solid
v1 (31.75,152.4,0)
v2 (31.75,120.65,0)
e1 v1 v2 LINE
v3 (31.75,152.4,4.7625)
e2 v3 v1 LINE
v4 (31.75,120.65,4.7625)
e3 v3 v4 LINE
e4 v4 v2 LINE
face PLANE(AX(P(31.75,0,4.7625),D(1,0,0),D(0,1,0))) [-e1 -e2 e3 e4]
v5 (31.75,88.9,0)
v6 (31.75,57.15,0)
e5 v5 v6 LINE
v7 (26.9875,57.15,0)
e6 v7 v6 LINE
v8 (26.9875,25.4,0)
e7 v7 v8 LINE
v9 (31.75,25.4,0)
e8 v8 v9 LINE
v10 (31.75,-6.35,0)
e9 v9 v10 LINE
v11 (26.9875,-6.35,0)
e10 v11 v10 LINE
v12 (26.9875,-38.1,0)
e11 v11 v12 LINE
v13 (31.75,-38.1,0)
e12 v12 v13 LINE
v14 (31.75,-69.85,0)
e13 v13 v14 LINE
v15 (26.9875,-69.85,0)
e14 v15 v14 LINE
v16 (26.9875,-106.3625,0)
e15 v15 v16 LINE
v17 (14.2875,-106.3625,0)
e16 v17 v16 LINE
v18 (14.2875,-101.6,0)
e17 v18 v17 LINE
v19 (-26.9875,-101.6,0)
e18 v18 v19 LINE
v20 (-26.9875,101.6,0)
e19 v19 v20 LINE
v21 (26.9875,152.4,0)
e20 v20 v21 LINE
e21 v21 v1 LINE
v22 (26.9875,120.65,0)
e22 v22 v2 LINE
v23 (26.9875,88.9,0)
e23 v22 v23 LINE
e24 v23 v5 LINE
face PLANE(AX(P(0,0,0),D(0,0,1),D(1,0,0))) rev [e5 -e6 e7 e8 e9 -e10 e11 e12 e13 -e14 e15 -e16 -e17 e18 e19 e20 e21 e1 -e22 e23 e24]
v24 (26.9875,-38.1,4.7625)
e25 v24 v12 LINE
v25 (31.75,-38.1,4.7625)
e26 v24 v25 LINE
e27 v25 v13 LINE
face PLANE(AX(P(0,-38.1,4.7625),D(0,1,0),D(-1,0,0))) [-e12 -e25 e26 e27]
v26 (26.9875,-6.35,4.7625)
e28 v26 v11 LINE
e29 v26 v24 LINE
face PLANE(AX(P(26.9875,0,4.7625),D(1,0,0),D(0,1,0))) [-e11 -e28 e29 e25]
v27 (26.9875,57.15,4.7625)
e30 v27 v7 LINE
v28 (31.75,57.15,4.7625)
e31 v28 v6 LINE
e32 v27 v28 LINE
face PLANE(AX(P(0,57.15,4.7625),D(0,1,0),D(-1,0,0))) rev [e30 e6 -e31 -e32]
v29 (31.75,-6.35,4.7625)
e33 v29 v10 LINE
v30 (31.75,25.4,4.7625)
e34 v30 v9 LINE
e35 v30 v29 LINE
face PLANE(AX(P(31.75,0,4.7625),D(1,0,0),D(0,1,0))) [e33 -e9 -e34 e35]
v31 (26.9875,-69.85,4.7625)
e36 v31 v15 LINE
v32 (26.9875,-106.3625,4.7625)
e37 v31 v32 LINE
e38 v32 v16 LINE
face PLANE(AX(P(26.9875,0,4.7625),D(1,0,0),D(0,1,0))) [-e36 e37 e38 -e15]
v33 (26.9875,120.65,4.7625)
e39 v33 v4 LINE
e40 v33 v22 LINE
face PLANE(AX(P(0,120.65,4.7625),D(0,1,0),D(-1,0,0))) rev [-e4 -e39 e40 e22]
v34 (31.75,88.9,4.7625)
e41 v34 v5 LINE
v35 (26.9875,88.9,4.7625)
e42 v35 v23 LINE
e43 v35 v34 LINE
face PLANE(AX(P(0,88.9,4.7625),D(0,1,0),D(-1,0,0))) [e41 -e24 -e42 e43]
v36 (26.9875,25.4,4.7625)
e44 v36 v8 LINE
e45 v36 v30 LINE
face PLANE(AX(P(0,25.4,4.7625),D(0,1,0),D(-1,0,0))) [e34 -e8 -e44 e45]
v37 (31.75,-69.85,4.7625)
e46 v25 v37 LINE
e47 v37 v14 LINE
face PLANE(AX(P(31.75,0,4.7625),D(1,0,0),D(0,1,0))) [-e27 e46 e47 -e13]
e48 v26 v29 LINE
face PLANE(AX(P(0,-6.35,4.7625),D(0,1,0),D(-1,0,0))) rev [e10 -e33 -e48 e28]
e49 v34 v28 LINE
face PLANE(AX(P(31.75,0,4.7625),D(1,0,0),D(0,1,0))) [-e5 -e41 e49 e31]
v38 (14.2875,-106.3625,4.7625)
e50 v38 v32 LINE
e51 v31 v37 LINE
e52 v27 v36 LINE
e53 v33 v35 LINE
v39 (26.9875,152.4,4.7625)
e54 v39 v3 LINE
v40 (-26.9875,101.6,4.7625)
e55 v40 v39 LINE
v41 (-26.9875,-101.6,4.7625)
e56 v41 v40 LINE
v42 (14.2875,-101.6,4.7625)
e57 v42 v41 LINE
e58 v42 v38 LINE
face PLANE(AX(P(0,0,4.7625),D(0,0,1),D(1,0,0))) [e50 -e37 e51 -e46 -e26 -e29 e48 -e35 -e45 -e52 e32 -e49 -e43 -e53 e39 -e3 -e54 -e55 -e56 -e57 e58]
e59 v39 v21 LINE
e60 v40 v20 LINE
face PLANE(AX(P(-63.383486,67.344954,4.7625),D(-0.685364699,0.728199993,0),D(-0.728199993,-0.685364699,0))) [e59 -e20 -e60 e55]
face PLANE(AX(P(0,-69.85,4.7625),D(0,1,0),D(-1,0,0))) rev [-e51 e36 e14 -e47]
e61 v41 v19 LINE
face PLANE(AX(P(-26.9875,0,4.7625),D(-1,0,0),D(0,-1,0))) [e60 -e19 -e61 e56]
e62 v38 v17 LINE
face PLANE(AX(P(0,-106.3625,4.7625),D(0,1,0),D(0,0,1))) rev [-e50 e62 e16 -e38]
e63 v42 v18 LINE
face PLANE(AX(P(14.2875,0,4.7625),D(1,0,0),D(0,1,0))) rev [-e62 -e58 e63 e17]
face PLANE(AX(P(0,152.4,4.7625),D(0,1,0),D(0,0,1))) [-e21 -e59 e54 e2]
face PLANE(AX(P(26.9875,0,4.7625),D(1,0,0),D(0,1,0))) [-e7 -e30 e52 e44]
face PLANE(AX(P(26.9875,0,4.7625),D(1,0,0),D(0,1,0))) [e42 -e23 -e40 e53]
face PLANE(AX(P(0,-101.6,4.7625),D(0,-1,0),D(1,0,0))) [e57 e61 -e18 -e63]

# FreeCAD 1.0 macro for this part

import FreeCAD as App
import Part
import Sketcher
from FreeCAD import Vector
Q = App.Units.Quantity

doc = App.newDocument("Part")
params = doc.addObject("Spreadsheet::Sheet", "Params")
for row, (alias, value) in enumerate([
    ("sketch1_height", "8 in"),
    ("sketch1_width", "0.5 in"),
    ("sketch1_width2", "1.625 in"),
    ("sketch1_width3", "0.1875 in"),
    ("pad1_length", "0.1875 in"),
], start=1):
    params.set(f"A{row}", alias)
    params.set(f"B{row}", "=" + value)
    params.setAlias(f"B{row}", alias)

body = doc.addObject("PartDesign::Body", "Body")

sketch1 = doc.addObject("Sketcher::SketchObject", "Sketch")
body.addObject(sketch1)
sketch1.AttachmentSupport = (doc.XY_Plane, [""])
sketch1.MapMode = "FlatFace"
sketch1.addGeometry([
    Part.LineSegment(Vector(-26.9875, -101.6, 0), Vector(14.2875, -101.6, 0)),
    Part.LineSegment(Vector(14.2875, -101.6, 0), Vector(14.2875, -106.3625, 0)),
    Part.LineSegment(Vector(14.2875, -106.3625, 0), Vector(26.9875, -106.3625, 0)),
    Part.LineSegment(Vector(26.9875, -106.3625, 0), Vector(26.9875, -69.85, 0)),
    Part.LineSegment(Vector(26.9875, -69.85, 0), Vector(31.75, -69.85, 0)),
    Part.LineSegment(Vector(31.75, -69.85, 0), Vector(31.75, -38.1, 0)),
    Part.LineSegment(Vector(31.75, -38.1, 0), Vector(26.9875, -38.1, 0)),
    Part.LineSegment(Vector(26.9875, -38.1, 0), Vector(26.9875, -6.35, 0)),
    Part.LineSegment(Vector(26.9875, -6.35, 0), Vector(31.75, -6.35, 0)),
    Part.LineSegment(Vector(31.75, -6.35, 0), Vector(31.75, 25.4, 0)),
    Part.LineSegment(Vector(31.75, 25.4, 0), Vector(26.9875, 25.4, 0)),
    Part.LineSegment(Vector(26.9875, 25.4, 0), Vector(26.9875, 57.15, 0)),
    Part.LineSegment(Vector(26.9875, 57.15, 0), Vector(31.75, 57.15, 0)),
    Part.LineSegment(Vector(31.75, 57.15, 0), Vector(31.75, 88.9, 0)),
    Part.LineSegment(Vector(31.75, 88.9, 0), Vector(26.9875, 88.9, 0)),
    Part.LineSegment(Vector(26.9875, 88.9, 0), Vector(26.9875, 120.65, 0)),
    Part.LineSegment(Vector(26.9875, 120.65, 0), Vector(31.75, 120.65, 0)),
    Part.LineSegment(Vector(31.75, 120.65, 0), Vector(31.75, 152.4, 0)),
    Part.LineSegment(Vector(31.75, 152.4, 0), Vector(26.9875, 152.4, 0)),
    Part.LineSegment(Vector(26.9875, 152.4, 0), Vector(-26.9875, 101.6, 0)),
    Part.LineSegment(Vector(-26.9875, 101.6, 0), Vector(-26.9875, -101.6, 0)),
], False)
sketch1.addConstraint([
    Sketcher.Constraint("Coincident", 0, 2, 1, 1),
    Sketcher.Constraint("Coincident", 1, 2, 2, 1),
    Sketcher.Constraint("Coincident", 2, 2, 3, 1),
    Sketcher.Constraint("Coincident", 3, 2, 4, 1),
    Sketcher.Constraint("Coincident", 4, 2, 5, 1),
    Sketcher.Constraint("Coincident", 5, 2, 6, 1),
    Sketcher.Constraint("Coincident", 6, 2, 7, 1),
    Sketcher.Constraint("Coincident", 7, 2, 8, 1),
    Sketcher.Constraint("Coincident", 8, 2, 9, 1),
    Sketcher.Constraint("Coincident", 9, 2, 10, 1),
    Sketcher.Constraint("Coincident", 10, 2, 11, 1),
    Sketcher.Constraint("Coincident", 11, 2, 12, 1),
    Sketcher.Constraint("Coincident", 12, 2, 13, 1),
    Sketcher.Constraint("Coincident", 13, 2, 14, 1),
    Sketcher.Constraint("Coincident", 14, 2, 15, 1),
    Sketcher.Constraint("Coincident", 15, 2, 16, 1),
    Sketcher.Constraint("Coincident", 16, 2, 17, 1),
    Sketcher.Constraint("Coincident", 17, 2, 18, 1),
    Sketcher.Constraint("Coincident", 18, 2, 19, 1),
    Sketcher.Constraint("Coincident", 19, 2, 20, 1),
    Sketcher.Constraint("Coincident", 20, 2, 0, 1),
    Sketcher.Constraint("Horizontal", 0),
    Sketcher.Constraint("Vertical", 1),
    Sketcher.Constraint("Horizontal", 2),
    Sketcher.Constraint("Vertical", 3),
    Sketcher.Constraint("Horizontal", 4),
    Sketcher.Constraint("Vertical", 5),
    Sketcher.Constraint("Horizontal", 6),
    Sketcher.Constraint("Vertical", 7),
    Sketcher.Constraint("Horizontal", 8),
    Sketcher.Constraint("Vertical", 9),
    Sketcher.Constraint("Horizontal", 10),
    Sketcher.Constraint("Vertical", 11),
    Sketcher.Constraint("Horizontal", 12),
    Sketcher.Constraint("Vertical", 13),
    Sketcher.Constraint("Horizontal", 14),
    Sketcher.Constraint("Vertical", 15),
    Sketcher.Constraint("Horizontal", 16),
    Sketcher.Constraint("Vertical", 17),
    Sketcher.Constraint("Horizontal", 18),
    Sketcher.Constraint("Vertical", 20),
    Sketcher.Constraint("Vertical", 3, 2, 6, 2),
    Sketcher.Constraint("Vertical", 5, 2, 8, 2),
    Sketcher.Constraint("Vertical", 7, 2, 10, 2),
    Sketcher.Constraint("Vertical", 9, 2, 12, 2),
    Sketcher.Constraint("Vertical", 11, 2, 14, 2),
    Sketcher.Constraint("Vertical", 13, 2, 16, 2),
    Sketcher.Constraint("Vertical", 15, 2, 18, 2),
    Sketcher.Constraint("Equal", 18, 1),
    Sketcher.Constraint("Equal", 5, 7),
    Sketcher.Constraint("Equal", 7, 9),
    Sketcher.Constraint("Equal", 9, 11),
    Sketcher.Constraint("Equal", 11, 13),
    Sketcher.Constraint("Equal", 13, 15),
    Sketcher.Constraint("Equal", 15, 17),
    Sketcher.Constraint("DistanceY", 20, 2, 20, 1, Q("8 in")),
    Sketcher.Constraint("DistanceX", 2, 1, 2, 2, Q("0.5 in")),
    Sketcher.Constraint("DistanceY", 0, 2, -1, 1, Q("4 in")),
    Sketcher.Constraint("DistanceY", -1, 1, 9, 2, Q("1 in")),
    Sketcher.Constraint("DistanceY", -1, 1, 17, 2, Q("6 in")),
    Sketcher.Constraint("DistanceX", 0, 1, 0, 2, Q("1.625 in")),
    Sketcher.Constraint("DistanceX", 4, 1, 4, 2, Q("0.1875 in")),
    Sketcher.Constraint("DistanceX", -1, 1, 4, 2, Q("1.25 in")),
])
sketch1.setExpression("Constraints[55]", "Params.sketch1_height")
sketch1.setExpression("Constraints[56]", "Params.sketch1_width")
sketch1.setExpression("Constraints[60]", "Params.sketch1_width2")
sketch1.setExpression("Constraints[61]", "Params.sketch1_width3")
pad1 = doc.addObject("PartDesign::Pad", "Pad")
body.addObject(pad1)
pad1.Profile = sketch1
pad1.setExpression("Length", "Params.pad1_length")

doc.recompute()
